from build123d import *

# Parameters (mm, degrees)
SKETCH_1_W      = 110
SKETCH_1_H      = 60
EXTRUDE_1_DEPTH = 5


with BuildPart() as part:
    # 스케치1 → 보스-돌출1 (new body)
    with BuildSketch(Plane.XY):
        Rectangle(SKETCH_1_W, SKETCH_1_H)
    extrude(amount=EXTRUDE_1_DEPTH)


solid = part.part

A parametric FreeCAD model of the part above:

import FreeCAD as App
import Part
import Sketcher
from FreeCAD import Vector
Q = App.Units.Quantity


def add_polygon(sketch, points):
    """Adds a closed chain of lines whose ends are joined by coincident constraints."""
    first, n = sketch.GeometryCount, len(points)
    for a, b in zip(points, points[1:] + points[:1]):
        sketch.addGeometry(Part.LineSegment(App.Vector(*a, 0), App.Vector(*b, 0)), False)
    for i in range(n):
        sketch.addConstraint(Sketcher.Constraint("Coincident", first + i, 2, first + (i + 1) % n, 1))

doc = App.newDocument("Part")
body = doc.addObject("PartDesign::Body", "Body")

# Sketch on XY plane
sketch1 = body.newObject("Sketcher::SketchObject", "Sketch")
sketch1.AttachmentSupport = (doc.getObject("XY_Plane"), [""])
sketch1.MapMode = "FlatFace"
add_polygon(sketch1, [(-55, 30), (-55, -30), (55, -30), (55, 30)])  # lines 0-3
sketch1.addConstraint([
    Sketcher.Constraint("Vertical", 0),
    Sketcher.Constraint("Horizontal", 1),
    Sketcher.Constraint("Vertical", 2),
    Sketcher.Constraint("Horizontal", 3),
    Sketcher.Constraint("Symmetric", 0, 2, 2, 2, -1, 1),
    Sketcher.Constraint("DistanceX", 1, 1, 1, 2, Q("110 mm")),
    Sketcher.Constraint("DistanceY", 0, 2, 0, 1, Q("60 mm")),
])
pad1 = body.newObject("PartDesign::Pad", "Pad")
pad1.Profile = sketch1
pad1.Length = 5

doc.recompute()
